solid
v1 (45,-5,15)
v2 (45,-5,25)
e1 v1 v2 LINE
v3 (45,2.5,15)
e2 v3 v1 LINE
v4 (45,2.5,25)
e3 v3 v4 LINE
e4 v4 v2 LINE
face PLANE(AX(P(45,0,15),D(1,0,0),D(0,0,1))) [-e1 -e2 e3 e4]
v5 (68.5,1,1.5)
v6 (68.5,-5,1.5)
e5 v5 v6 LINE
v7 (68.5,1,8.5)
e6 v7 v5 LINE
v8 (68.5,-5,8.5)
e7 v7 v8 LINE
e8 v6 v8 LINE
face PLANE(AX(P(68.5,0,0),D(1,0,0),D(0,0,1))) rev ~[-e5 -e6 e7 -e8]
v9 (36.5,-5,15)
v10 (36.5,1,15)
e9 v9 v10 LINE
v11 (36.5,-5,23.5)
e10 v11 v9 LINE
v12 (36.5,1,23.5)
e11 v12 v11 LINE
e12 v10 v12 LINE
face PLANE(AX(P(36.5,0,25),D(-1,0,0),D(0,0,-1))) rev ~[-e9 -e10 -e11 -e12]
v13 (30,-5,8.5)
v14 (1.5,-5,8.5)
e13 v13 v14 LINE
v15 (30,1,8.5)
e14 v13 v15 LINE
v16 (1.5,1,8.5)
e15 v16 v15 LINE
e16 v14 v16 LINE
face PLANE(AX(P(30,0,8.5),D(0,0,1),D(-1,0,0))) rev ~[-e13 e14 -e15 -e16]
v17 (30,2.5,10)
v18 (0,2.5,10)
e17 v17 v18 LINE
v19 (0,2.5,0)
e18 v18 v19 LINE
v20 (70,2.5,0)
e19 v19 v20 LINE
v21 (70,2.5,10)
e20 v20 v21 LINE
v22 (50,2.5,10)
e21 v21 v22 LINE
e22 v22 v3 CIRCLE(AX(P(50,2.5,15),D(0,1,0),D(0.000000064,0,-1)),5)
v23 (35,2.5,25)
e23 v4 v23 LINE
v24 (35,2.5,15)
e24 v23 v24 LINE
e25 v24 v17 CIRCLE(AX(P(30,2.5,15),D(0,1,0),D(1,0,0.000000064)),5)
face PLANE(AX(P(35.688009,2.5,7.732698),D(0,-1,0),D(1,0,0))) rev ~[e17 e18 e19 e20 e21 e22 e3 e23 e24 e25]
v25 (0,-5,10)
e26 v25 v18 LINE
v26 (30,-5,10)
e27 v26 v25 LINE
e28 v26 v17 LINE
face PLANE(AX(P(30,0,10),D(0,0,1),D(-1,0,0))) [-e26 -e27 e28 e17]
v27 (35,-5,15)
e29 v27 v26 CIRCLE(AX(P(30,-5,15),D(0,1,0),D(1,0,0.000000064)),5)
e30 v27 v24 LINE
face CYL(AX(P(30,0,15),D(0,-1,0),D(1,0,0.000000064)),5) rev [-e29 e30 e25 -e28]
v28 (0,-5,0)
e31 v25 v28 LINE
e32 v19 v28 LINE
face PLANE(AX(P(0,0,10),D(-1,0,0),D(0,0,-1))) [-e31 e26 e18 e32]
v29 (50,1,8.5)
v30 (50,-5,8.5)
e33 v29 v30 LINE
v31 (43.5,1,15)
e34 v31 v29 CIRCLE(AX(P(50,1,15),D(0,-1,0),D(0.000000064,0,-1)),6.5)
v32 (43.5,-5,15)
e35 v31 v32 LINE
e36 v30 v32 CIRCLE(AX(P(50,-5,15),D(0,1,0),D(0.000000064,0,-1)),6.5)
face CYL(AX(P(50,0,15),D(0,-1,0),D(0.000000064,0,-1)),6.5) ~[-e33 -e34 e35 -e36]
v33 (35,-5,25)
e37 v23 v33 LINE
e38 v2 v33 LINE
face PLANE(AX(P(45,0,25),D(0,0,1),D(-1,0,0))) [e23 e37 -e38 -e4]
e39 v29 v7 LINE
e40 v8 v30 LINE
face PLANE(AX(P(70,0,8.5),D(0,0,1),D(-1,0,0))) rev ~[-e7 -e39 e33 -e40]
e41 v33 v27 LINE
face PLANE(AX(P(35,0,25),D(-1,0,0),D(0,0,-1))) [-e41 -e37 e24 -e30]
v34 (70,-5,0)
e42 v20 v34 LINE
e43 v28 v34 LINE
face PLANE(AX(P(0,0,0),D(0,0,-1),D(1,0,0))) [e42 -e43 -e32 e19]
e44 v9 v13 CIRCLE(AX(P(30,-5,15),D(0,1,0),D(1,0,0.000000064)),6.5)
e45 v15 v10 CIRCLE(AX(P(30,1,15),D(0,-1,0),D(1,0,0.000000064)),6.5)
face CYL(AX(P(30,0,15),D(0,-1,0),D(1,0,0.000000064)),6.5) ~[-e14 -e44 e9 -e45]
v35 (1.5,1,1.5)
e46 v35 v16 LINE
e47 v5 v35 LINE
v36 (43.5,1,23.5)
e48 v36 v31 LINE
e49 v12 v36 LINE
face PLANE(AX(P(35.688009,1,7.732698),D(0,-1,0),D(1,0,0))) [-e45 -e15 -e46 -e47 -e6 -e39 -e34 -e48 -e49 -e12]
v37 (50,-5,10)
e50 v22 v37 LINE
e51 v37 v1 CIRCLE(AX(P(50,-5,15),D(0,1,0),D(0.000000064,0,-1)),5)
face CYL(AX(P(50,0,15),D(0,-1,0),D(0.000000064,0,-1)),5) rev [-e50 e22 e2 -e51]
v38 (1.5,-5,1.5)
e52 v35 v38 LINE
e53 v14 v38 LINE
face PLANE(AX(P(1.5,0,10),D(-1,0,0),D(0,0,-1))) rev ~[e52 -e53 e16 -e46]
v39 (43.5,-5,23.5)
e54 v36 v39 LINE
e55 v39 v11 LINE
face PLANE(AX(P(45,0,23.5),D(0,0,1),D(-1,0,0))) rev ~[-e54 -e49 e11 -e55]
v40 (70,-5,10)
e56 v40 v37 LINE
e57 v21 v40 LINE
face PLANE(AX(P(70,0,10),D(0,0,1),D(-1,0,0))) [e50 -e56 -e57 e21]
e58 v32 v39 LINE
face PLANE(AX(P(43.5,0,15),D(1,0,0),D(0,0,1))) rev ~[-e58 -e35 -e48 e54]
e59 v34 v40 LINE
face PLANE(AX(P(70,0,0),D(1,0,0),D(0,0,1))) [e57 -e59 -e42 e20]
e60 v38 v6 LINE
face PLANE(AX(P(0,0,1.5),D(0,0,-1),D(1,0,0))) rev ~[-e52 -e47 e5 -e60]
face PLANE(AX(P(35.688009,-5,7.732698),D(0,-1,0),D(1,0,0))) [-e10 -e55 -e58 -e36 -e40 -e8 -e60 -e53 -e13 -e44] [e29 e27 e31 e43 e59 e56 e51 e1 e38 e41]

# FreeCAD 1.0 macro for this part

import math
import FreeCAD as App
import Part
import Sketcher
from FreeCAD import Vector


def faces_at(feature, points):
    """Names of the faces that lie closest to the given points."""
    faces = feature.Shape.Faces
    near = lambda p: min(range(len(faces)), key=lambda i: faces[i].distToShape(Part.Vertex(*p))[0])
    return sorted({f"Face{near(p) + 1}" for p in points})

doc = App.newDocument("Part")
body = doc.addObject("PartDesign::Body", "Body")

# Sketch on XZ plane
sketch1 = body.newObject("Sketcher::SketchObject", "Sketch")
sketch1.AttachmentSupport = (doc.getObject("XZ_Plane"), [""])
sketch1.MapMode = "FlatFace"
sketch1.addGeometry([
    Part.LineSegment(Vector(0, 10, 0), Vector(0, 0, 0)),  # 0
    Part.LineSegment(Vector(0, 0, 0), Vector(70, 0, 0)),  # 1
    Part.LineSegment(Vector(70, 0, 0), Vector(70, 10, 0)),  # 2
    Part.LineSegment(Vector(70, 10, 0), Vector(50, 10, 0)),  # 3
    Part.ArcOfCircle(Part.Circle(Vector(50, 15, 0), Vector(0, 0, 1), 5), math.radians(180), math.radians(270)),  # 4
    Part.LineSegment(Vector(45, 15, 0), Vector(45, 25, 0)),  # 5
    Part.LineSegment(Vector(45, 25, 0), Vector(35, 25, 0)),  # 6
    Part.LineSegment(Vector(35, 25, 0), Vector(35, 15, 0)),  # 7
    Part.ArcOfCircle(Part.Circle(Vector(30, 15, 0), Vector(0, 0, 1), 5), math.radians(-90), math.radians(0)),  # 8
    Part.LineSegment(Vector(30, 10, 0), Vector(0, 10, 0)),  # 9
], False)
sketch1.addConstraint([
    Sketcher.Constraint("Coincident", 0, 2, 1, 1),
    Sketcher.Constraint("Coincident", 1, 2, 2, 1),
    Sketcher.Constraint("Coincident", 2, 2, 3, 1),
    Sketcher.Constraint("Tangent", 3, 2, 4, 2),
    Sketcher.Constraint("Tangent", 4, 1, 5, 1),
    Sketcher.Constraint("Coincident", 5, 2, 6, 1),
    Sketcher.Constraint("Coincident", 6, 2, 7, 1),
    Sketcher.Constraint("Tangent", 7, 2, 8, 2),
    Sketcher.Constraint("Tangent", 8, 1, 9, 1),
    Sketcher.Constraint("Coincident", 9, 2, 0, 1),
    Sketcher.Constraint("Vertical", 0),
    Sketcher.Constraint("Horizontal", 1),
    Sketcher.Constraint("Vertical", 2),
    Sketcher.Constraint("Horizontal", 3),
    Sketcher.Constraint("Vertical", 5),
    Sketcher.Constraint("Horizontal", 6),
    Sketcher.Constraint("Vertical", 7),
    Sketcher.Constraint("Horizontal", 9),
    Sketcher.Constraint("Coincident", 0, 2, -1, 1),
    Sketcher.Constraint("Equal", 4, 8),
    Sketcher.Constraint("Horizontal", 4, 3, 8, 3),
    Sketcher.Constraint("Equal", 6, 0),
    Sketcher.Constraint("Equal", 2, 5),
    Sketcher.Constraint("Radius", 4, 5.0),
    Sketcher.Constraint("DistanceX", 1, 1, 1, 2, 70.0),
    Sketcher.Constraint("DistanceX", 3, 2, 3, 1, 20.0),
    Sketcher.Constraint("DistanceX", 6, 2, 6, 1, 10.0),
])
pad1 = body.newObject("PartDesign::Pad", "Pad")
pad1.Profile = sketch1
pad1.Length = 5

# Sketch on XZ plane
sketch2 = body.newObject("Sketcher::SketchObject", "Sketch001")
sketch2.AttachmentSupport = (doc.getObject("XZ_Plane"), [""])
sketch2.MapMode = "FlatFace"
sketch2.addGeometry([
    Part.LineSegment(Vector(0, 10, 0), Vector(0, 0, 0)),  # 0
    Part.LineSegment(Vector(0, 0, 0), Vector(70, 0, 0)),  # 1
    Part.LineSegment(Vector(70, 0, 0), Vector(70, 10, 0)),  # 2
    Part.LineSegment(Vector(70, 10, 0), Vector(50, 10, 0)),  # 3
    Part.ArcOfCircle(Part.Circle(Vector(50, 15, 0), Vector(0, 0, 1), 5), math.radians(180), math.radians(270)),  # 4
    Part.LineSegment(Vector(45, 15, 0), Vector(45, 25, 0)),  # 5
    Part.LineSegment(Vector(45, 25, 0), Vector(35, 25, 0)),  # 6
    Part.LineSegment(Vector(35, 25, 0), Vector(35, 15, 0)),  # 7
    Part.ArcOfCircle(Part.Circle(Vector(30, 15, 0), Vector(0, 0, 1), 5), math.radians(-90), math.radians(0)),  # 8
    Part.LineSegment(Vector(30, 10, 0), Vector(0, 10, 0)),  # 9
], False)
sketch2.addConstraint([
    Sketcher.Constraint("Coincident", 0, 2, 1, 1),
    Sketcher.Constraint("Coincident", 1, 2, 2, 1),
    Sketcher.Constraint("Coincident", 2, 2, 3, 1),
    Sketcher.Constraint("Tangent", 3, 2, 4, 2),
    Sketcher.Constraint("Tangent", 4, 1, 5, 1),
    Sketcher.Constraint("Coincident", 5, 2, 6, 1),
    Sketcher.Constraint("Coincident", 6, 2, 7, 1),
    Sketcher.Constraint("Tangent", 7, 2, 8, 2),
    Sketcher.Constraint("Tangent", 8, 1, 9, 1),
    Sketcher.Constraint("Coincident", 9, 2, 0, 1),
    Sketcher.Constraint("Vertical", 0),
    Sketcher.Constraint("Horizontal", 1),
    Sketcher.Constraint("Vertical", 2),
    Sketcher.Constraint("Horizontal", 3),
    Sketcher.Constraint("Vertical", 5),
    Sketcher.Constraint("Horizontal", 6),
    Sketcher.Constraint("Vertical", 7),
    Sketcher.Constraint("Horizontal", 9),
    Sketcher.Constraint("Coincident", 0, 2, -1, 1),
    Sketcher.Constraint("Equal", 4, 8),
    Sketcher.Constraint("Horizontal", 4, 3, 8, 3),
    Sketcher.Constraint("Equal", 6, 0),
    Sketcher.Constraint("Equal", 2, 5),
    Sketcher.Constraint("Radius", 4, 5.0),
    Sketcher.Constraint("DistanceX", 1, 1, 1, 2, 70.0),
    Sketcher.Constraint("DistanceX", 3, 2, 3, 1, 20.0),
    Sketcher.Constraint("DistanceX", 6, 2, 6, 1, 10.0),
])
pad2 = body.newObject("PartDesign::Pad", "Pad001")
pad2.Profile = sketch2
pad2.Length = 5
pad2.Midplane = True
doc.recompute()

thickness = body.newObject("PartDesign::Thickness", "Thickness")
thickness.Base = (pad2, faces_at(pad2, [(35, -5, 12.5)]))
thickness.Value = 1.5
thickness.Reversed = True
thickness.Join = "Arc"

doc.recompute()
